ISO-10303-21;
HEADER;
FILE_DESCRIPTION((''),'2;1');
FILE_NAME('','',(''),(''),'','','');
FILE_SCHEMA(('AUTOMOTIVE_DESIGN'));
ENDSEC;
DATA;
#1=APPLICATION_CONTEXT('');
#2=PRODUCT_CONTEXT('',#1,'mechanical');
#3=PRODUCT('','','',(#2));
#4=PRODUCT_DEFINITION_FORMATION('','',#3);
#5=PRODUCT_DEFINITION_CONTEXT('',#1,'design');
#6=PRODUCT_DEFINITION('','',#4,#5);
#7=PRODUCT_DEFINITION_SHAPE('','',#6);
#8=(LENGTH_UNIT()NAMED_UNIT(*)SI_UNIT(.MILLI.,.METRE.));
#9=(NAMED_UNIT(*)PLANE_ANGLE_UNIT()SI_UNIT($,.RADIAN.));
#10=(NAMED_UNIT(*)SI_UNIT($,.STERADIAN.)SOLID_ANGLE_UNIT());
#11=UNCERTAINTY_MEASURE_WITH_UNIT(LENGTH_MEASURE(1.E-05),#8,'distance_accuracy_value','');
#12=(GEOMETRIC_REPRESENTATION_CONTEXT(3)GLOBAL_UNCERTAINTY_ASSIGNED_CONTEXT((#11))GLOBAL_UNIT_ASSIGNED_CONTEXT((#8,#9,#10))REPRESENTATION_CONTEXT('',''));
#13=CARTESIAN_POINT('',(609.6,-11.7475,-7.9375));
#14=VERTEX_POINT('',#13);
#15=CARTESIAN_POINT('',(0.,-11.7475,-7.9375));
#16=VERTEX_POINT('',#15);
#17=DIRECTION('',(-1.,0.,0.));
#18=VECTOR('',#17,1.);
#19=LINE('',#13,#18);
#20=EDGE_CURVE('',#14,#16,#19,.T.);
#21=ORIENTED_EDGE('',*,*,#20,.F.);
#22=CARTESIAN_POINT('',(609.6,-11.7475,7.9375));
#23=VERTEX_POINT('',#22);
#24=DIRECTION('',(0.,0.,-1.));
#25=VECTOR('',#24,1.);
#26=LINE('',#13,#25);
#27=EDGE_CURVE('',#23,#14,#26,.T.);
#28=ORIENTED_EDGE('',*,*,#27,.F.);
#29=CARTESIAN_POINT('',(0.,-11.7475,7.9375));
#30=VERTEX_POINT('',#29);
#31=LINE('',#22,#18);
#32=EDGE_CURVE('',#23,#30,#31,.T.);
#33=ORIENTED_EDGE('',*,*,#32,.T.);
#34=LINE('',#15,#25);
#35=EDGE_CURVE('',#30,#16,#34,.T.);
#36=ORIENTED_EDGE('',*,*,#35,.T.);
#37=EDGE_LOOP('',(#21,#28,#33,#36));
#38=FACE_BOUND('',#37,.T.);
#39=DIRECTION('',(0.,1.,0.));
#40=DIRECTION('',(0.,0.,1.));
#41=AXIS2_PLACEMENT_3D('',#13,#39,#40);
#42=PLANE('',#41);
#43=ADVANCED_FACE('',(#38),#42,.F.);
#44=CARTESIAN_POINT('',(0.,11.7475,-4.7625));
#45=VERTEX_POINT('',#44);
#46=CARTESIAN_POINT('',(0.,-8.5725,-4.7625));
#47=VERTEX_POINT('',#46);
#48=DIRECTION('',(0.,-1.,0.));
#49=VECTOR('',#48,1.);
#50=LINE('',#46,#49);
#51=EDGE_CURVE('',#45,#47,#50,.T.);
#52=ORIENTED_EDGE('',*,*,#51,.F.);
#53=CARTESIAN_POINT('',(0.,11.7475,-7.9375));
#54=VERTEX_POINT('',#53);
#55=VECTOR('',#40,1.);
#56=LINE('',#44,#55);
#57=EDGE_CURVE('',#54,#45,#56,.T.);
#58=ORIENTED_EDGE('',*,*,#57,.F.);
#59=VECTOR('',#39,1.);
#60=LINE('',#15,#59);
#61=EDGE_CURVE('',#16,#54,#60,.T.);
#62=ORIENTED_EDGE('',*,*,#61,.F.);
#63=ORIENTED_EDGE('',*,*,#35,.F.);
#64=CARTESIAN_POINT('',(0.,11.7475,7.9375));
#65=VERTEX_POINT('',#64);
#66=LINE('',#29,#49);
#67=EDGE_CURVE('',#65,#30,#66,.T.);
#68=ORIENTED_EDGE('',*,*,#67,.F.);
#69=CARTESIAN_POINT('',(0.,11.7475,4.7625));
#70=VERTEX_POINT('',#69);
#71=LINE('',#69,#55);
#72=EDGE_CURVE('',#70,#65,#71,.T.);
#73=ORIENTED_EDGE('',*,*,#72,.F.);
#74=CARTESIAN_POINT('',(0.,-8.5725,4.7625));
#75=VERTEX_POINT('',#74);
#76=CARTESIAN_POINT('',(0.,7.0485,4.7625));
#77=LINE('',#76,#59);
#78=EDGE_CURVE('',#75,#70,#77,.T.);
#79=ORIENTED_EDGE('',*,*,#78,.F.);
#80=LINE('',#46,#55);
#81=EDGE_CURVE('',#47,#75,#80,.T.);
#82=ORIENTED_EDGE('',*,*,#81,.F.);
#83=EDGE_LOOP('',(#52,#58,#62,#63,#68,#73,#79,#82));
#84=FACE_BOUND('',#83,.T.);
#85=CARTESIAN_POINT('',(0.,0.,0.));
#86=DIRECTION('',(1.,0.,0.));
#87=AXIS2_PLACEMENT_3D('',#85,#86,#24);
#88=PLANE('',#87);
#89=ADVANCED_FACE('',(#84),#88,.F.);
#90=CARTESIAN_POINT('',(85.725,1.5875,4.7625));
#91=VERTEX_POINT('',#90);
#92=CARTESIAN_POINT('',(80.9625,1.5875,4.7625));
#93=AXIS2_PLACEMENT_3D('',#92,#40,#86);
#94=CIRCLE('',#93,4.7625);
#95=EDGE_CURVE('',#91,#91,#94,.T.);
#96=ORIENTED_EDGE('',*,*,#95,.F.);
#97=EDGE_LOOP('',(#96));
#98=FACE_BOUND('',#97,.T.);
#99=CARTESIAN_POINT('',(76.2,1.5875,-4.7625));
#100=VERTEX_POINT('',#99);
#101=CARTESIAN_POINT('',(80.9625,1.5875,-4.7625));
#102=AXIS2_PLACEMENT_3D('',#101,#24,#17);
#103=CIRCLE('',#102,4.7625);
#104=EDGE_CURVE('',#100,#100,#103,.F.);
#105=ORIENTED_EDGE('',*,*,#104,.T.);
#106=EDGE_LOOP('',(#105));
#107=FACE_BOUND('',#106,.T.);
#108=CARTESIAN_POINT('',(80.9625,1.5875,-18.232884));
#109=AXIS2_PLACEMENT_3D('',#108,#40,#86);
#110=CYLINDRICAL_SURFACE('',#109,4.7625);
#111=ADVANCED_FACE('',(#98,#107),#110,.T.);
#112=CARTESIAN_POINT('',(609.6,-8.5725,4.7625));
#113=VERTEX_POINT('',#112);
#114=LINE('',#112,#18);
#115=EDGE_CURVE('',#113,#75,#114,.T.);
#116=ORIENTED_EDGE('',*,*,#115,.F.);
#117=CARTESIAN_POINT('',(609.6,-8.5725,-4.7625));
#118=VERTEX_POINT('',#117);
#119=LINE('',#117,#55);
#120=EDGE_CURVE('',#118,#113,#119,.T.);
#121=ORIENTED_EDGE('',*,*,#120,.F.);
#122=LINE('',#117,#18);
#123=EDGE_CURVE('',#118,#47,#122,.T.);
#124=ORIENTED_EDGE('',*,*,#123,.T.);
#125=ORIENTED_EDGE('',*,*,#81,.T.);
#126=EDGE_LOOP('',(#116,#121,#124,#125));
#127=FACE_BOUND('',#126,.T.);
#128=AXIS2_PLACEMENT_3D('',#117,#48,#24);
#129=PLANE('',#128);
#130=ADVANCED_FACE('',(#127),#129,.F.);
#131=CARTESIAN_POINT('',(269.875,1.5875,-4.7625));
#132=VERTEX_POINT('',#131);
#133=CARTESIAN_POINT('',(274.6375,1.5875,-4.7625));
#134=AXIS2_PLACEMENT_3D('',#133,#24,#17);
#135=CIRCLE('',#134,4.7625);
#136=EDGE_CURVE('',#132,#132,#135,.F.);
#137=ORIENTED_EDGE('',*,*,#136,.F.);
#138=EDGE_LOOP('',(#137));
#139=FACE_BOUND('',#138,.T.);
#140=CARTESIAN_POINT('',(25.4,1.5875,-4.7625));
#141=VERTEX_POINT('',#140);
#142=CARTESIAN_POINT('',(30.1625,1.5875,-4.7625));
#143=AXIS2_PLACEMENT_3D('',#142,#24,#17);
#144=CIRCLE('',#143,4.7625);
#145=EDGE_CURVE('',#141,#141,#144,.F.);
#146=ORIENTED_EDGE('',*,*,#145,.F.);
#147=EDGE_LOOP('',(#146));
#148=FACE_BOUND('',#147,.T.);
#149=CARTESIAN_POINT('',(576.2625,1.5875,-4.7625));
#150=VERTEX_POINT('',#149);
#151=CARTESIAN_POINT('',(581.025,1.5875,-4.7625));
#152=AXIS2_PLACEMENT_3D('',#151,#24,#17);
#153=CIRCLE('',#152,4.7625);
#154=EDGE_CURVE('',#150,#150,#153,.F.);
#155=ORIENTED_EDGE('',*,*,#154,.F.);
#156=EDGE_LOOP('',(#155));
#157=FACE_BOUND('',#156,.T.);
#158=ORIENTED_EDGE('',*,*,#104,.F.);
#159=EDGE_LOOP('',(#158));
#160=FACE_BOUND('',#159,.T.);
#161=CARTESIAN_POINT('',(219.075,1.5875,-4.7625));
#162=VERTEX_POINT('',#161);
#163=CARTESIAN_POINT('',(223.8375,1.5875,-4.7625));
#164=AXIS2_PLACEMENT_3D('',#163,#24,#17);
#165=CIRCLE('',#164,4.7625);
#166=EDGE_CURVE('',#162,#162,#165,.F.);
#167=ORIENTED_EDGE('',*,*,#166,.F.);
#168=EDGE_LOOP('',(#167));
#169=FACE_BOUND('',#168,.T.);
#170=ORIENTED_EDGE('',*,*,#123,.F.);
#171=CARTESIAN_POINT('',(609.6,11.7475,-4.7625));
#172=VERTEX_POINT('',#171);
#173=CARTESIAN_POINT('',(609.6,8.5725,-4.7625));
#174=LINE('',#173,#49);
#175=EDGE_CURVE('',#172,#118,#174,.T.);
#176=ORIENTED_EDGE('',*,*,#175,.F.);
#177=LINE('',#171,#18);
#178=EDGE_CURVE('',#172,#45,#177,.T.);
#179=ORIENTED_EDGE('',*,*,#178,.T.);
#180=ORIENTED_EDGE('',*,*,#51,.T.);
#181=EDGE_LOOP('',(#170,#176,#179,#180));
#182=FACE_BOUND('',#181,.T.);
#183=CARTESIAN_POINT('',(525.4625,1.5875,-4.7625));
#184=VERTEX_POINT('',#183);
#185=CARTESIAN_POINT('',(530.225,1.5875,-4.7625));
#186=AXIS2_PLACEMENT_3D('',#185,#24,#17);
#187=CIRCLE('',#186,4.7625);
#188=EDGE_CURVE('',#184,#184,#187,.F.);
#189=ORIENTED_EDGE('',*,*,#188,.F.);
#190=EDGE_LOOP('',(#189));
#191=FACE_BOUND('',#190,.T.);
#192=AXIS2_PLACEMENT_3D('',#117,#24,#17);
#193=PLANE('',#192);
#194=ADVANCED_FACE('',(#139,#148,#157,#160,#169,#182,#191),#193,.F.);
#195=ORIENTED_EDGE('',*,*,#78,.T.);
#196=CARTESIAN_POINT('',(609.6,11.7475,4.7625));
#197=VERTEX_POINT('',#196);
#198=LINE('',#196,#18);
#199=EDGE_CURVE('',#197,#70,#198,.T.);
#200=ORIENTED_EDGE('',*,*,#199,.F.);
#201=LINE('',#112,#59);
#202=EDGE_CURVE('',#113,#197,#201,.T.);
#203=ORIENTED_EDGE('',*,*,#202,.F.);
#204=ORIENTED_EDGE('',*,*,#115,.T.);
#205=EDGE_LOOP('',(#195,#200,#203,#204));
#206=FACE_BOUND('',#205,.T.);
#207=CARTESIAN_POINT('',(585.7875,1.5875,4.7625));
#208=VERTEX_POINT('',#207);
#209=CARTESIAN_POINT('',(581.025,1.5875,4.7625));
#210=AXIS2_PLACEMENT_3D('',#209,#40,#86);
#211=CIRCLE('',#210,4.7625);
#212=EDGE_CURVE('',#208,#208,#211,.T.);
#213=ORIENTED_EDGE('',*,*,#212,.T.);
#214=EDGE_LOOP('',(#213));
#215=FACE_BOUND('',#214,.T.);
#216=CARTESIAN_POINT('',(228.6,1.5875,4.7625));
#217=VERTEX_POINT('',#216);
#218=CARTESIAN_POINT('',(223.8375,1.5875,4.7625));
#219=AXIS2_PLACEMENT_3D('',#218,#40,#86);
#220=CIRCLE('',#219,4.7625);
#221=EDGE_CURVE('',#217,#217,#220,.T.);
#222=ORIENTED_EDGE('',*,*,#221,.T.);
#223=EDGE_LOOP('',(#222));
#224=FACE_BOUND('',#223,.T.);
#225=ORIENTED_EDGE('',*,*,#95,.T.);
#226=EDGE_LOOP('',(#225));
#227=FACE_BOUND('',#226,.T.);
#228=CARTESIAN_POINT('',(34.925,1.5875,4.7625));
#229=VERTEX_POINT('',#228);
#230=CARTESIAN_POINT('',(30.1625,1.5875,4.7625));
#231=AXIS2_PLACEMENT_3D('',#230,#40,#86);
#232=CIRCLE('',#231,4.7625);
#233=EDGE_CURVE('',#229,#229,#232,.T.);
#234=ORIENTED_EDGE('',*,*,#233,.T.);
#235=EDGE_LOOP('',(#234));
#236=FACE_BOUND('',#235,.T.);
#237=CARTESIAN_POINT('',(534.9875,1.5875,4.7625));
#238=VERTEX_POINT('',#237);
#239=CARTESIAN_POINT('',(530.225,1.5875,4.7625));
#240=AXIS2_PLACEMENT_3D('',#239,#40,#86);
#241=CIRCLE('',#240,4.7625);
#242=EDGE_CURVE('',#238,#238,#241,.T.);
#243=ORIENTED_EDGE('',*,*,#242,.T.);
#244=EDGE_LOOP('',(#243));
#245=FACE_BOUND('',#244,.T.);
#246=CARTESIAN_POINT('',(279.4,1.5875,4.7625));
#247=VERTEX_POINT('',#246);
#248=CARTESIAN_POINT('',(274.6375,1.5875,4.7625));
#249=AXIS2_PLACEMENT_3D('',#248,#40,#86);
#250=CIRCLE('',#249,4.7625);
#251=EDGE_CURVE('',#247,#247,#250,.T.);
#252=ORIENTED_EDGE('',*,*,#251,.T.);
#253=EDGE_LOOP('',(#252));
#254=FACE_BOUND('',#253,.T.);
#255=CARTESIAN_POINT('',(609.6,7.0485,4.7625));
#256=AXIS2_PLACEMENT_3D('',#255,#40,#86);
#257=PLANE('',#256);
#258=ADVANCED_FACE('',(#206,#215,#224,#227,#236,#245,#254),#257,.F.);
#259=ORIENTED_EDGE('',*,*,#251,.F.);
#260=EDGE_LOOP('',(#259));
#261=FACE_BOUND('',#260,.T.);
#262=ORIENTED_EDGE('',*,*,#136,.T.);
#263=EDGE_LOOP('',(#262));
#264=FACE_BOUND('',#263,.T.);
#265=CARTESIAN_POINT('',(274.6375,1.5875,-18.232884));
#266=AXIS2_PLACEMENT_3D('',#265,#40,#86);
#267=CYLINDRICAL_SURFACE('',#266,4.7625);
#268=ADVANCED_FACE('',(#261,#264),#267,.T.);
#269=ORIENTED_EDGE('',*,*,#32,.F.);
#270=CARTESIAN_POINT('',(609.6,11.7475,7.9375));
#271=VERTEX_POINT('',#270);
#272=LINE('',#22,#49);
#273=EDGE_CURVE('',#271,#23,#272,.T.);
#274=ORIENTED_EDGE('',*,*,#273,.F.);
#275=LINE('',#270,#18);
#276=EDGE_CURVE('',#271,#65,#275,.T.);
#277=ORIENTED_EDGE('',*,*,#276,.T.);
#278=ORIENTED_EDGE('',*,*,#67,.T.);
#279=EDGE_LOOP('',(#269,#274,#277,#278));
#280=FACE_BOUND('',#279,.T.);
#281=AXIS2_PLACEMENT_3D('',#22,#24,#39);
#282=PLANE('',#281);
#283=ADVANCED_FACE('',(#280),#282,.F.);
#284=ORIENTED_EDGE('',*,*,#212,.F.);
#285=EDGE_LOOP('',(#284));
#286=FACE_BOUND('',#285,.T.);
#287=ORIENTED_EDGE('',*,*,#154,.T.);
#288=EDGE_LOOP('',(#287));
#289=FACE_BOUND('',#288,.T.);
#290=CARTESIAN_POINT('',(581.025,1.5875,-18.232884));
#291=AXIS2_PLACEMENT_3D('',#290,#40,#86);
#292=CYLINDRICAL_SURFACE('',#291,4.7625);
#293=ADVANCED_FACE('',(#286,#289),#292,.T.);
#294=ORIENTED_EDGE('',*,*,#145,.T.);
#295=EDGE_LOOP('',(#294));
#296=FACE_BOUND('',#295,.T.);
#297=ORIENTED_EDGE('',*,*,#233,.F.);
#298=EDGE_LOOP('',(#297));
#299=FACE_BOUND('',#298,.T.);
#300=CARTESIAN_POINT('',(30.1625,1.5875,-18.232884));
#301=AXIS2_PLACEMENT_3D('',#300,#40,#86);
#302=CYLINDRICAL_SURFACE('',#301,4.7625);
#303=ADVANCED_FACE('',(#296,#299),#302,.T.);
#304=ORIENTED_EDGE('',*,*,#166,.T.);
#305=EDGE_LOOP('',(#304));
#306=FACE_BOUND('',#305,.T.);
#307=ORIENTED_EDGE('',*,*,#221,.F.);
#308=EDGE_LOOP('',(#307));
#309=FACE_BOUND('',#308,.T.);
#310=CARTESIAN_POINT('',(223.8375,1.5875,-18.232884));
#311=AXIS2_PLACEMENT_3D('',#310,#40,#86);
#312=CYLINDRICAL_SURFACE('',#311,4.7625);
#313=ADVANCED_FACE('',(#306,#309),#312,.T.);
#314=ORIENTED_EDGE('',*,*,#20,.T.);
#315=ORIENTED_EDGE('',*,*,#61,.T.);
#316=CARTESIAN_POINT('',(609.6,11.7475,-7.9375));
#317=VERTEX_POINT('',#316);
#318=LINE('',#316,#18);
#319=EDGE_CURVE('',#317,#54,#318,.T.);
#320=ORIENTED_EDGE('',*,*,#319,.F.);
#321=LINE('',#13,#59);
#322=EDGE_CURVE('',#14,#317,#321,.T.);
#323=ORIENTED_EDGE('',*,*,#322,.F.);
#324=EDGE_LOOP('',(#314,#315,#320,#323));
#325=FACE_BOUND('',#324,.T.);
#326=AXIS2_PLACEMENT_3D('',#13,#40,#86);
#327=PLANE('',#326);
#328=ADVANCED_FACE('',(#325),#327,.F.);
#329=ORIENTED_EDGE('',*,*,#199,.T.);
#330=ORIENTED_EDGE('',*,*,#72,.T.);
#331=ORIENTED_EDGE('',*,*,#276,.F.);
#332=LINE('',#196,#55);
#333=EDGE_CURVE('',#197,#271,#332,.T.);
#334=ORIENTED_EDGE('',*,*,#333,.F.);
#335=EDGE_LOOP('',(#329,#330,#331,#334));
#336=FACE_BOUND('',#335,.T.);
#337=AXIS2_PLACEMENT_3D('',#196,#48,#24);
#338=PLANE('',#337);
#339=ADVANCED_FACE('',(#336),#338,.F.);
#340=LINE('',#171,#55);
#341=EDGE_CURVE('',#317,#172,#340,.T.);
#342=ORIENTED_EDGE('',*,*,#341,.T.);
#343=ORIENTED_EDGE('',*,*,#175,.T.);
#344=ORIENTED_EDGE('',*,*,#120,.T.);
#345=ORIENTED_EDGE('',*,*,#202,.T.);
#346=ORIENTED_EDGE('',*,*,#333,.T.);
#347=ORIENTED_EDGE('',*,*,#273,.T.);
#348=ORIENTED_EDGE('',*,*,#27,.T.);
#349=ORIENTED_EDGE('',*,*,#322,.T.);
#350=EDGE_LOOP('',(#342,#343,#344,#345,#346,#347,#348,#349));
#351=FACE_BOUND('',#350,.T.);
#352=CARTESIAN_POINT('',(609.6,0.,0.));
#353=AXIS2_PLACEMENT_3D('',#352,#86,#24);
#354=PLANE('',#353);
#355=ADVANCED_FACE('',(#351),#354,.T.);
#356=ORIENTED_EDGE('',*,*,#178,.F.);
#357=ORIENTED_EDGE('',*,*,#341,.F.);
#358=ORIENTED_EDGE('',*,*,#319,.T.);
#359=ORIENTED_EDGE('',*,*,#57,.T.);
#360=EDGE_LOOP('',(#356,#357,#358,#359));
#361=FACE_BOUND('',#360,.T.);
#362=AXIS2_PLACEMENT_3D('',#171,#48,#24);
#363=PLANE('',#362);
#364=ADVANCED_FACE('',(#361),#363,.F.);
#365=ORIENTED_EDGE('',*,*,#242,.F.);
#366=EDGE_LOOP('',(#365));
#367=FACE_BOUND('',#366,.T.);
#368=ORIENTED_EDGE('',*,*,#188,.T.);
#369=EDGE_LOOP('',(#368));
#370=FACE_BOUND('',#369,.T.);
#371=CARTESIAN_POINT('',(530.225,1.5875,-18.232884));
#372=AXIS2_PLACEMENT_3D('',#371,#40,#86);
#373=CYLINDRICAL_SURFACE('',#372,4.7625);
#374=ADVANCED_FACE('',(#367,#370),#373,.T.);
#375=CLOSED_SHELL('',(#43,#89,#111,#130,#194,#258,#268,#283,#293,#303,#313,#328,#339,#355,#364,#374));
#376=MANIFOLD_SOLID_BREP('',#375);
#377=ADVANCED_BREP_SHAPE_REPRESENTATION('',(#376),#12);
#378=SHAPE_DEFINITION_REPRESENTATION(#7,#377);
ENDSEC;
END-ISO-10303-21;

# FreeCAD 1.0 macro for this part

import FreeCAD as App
import Part
import Sketcher
from FreeCAD import Vector
Q = App.Units.Quantity

doc = App.newDocument("Part")
params = doc.addObject("Spreadsheet::Sheet", "Params")
for row, (alias, value) in enumerate([
    ("sketch1_width", "0.8 in"),
    ("sketch1_width2", "0.925 in"),
    ("sketch1_height", "0.125 in"),
    ("pad1_length", "24 in"),
    ("sketch2_diameter", "0.375 in"),
    ("pad2_length", "0.375 in"),
], start=1):
    params.set(f"A{row}", alias)
    params.set(f"B{row}", "=" + value)
    params.setAlias(f"B{row}", alias)

body = doc.addObject("PartDesign::Body", "Body")

# Sketch on YZ plane
sketch1 = body.newObject("Sketcher::SketchObject", "Sketch")
sketch1.AttachmentSupport = (doc.getObject("YZ_Plane"), [""])
sketch1.MapMode = "FlatFace"
sketch1.addGeometry(Part.LineSegment(Vector(11.7, 4.8, 0), Vector(11.7, 7.9, 0)), False)
sketch1.addGeometry(Part.LineSegment(Vector(11.7, 7.9, 0), Vector(-11.7, 7.9, 0)), False)
sketch1.addGeometry(Part.LineSegment(Vector(-11.7, 7.9, 0), Vector(-11.7, -7.9, 0)), False)
sketch1.addGeometry(Part.LineSegment(Vector(-11.7, -7.9, 0), Vector(11.7, -7.9, 0)), False)
sketch1.addGeometry(Part.LineSegment(Vector(11.7, -7.9, 0), Vector(11.7, -4.8, 0)), False)
sketch1.addGeometry(Part.LineSegment(Vector(11.7, -4.8, 0), Vector(-8.6, -4.8, 0)), False)
sketch1.addGeometry(Part.LineSegment(Vector(-8.6, -4.8, 0), Vector(-8.6, 4.8, 0)), False)
sketch1.addGeometry(Part.LineSegment(Vector(-8.6, 4.8, 0), Vector(11.7, 4.8, 0)), False)
sketch1.addConstraint(Sketcher.Constraint("Coincident", 0, 2, 1, 1))
sketch1.addConstraint(Sketcher.Constraint("Coincident", 1, 2, 2, 1))
sketch1.addConstraint(Sketcher.Constraint("Coincident", 2, 2, 3, 1))
sketch1.addConstraint(Sketcher.Constraint("Coincident", 3, 2, 4, 1))
sketch1.addConstraint(Sketcher.Constraint("Coincident", 4, 2, 5, 1))
sketch1.addConstraint(Sketcher.Constraint("Coincident", 5, 2, 6, 1))
sketch1.addConstraint(Sketcher.Constraint("Coincident", 6, 2, 7, 1))
sketch1.addConstraint(Sketcher.Constraint("Coincident", 7, 2, 0, 1))
sketch1.addConstraint(Sketcher.Constraint("Vertical", 0))
sketch1.addConstraint(Sketcher.Constraint("Horizontal", 1))
sketch1.addConstraint(Sketcher.Constraint("Vertical", 2))
sketch1.addConstraint(Sketcher.Constraint("Horizontal", 3))
sketch1.addConstraint(Sketcher.Constraint("Vertical", 4))
sketch1.addConstraint(Sketcher.Constraint("Horizontal", 5))
sketch1.addConstraint(Sketcher.Constraint("Vertical", 6))
sketch1.addConstraint(Sketcher.Constraint("Horizontal", 7))
sketch1.addConstraint(Sketcher.Constraint("Symmetric", 0, 2, 2, 2, -1, 1))
sketch1.addConstraint(Sketcher.Constraint("Symmetric", 4, 2, 7, 2, -1))
sketch1.addConstraint(Sketcher.Constraint("DistanceX", 5, 2, 5, 1, Q("0.8 in")))
sketch1.addConstraint(Sketcher.Constraint("DistanceY", 4, 2, 0, 2, Q("0.5 in")))
sketch1.addConstraint(Sketcher.Constraint("DistanceX", 1, 2, 1, 1, Q("0.925 in")))
sketch1.addConstraint(Sketcher.Constraint("DistanceY", 0, 1, 0, 2, Q("0.125 in")))
sketch1.setExpression("Constraints[18]", "Params.sketch1_width")
sketch1.setExpression("Constraints[20]", "Params.sketch1_width2")
sketch1.setExpression("Constraints[21]", "Params.sketch1_height")
pad1 = body.newObject("PartDesign::Pad", "Pad")
pad1.Profile = sketch1
pad1.setExpression("Length", "Params.pad1_length")

# Sketch on XY plane
sketch2 = body.newObject("Sketcher::SketchObject", "Sketch001")
sketch2.AttachmentSupport = (doc.getObject("XY_Plane"), [""])
sketch2.MapMode = "FlatFace"
sketch2.AttachmentOffset = App.Placement(Vector(0, 0, 0.1875 * 25.4), App.Rotation())
sketch2.addGeometry(Part.Circle(Vector(581, 1.6, 0), Vector(0, 0, 1), 4.8), False)
sketch2.addGeometry(Part.Circle(Vector(530.2, 1.6, 0), Vector(0, 0, 1), 4.8), False)
sketch2.addGeometry(Part.Circle(Vector(274.6, 1.6, 0), Vector(0, 0, 1), 4.8), False)
sketch2.addGeometry(Part.Circle(Vector(223.8, 1.6, 0), Vector(0, 0, 1), 4.8), False)
sketch2.addGeometry(Part.Circle(Vector(30.2, 1.6, 0), Vector(0, 0, 1), 4.8), False)
sketch2.addGeometry(Part.Circle(Vector(81, 1.6, 0), Vector(0, 0, 1), 4.8), False)
sketch2.addConstraint(Sketcher.Constraint("Equal", 0, 1))
sketch2.addConstraint(Sketcher.Constraint("Equal", 1, 2))
sketch2.addConstraint(Sketcher.Constraint("Equal", 2, 3))
sketch2.addConstraint(Sketcher.Constraint("Equal", 3, 4))
sketch2.addConstraint(Sketcher.Constraint("Equal", 4, 5))
sketch2.addConstraint(Sketcher.Constraint("Horizontal", 0, 3, 1, 3))
sketch2.addConstraint(Sketcher.Constraint("Horizontal", 1, 3, 2, 3))
sketch2.addConstraint(Sketcher.Constraint("Horizontal", 2, 3, 3, 3))
sketch2.addConstraint(Sketcher.Constraint("Horizontal", 3, 3, 4, 3))
sketch2.addConstraint(Sketcher.Constraint("Horizontal", 4, 3, 5, 3))
sketch2.addConstraint(Sketcher.Constraint("Diameter", 0, Q("0.375 in")))
sketch2.addConstraint(Sketcher.Constraint("DistanceX", 1, 3, 0, 3, Q("2 in")))
sketch2.addConstraint(Sketcher.Constraint("DistanceX", 3, 3, 2, 3, Q("2 in")))
sketch2.addConstraint(Sketcher.Constraint("DistanceX", 4, 3, 5, 3, Q("2 in")))
sketch2.addConstraint(Sketcher.Constraint("DistanceX", -1, 1, 0, 3, Q("22.875 in")))
sketch2.addConstraint(Sketcher.Constraint("DistanceY", -1, 1, 0, 3, Q("0.0625 in")))
sketch2.addConstraint(Sketcher.Constraint("DistanceX", -1, 1, 2, 3, Q("10.8125 in")))
sketch2.addConstraint(Sketcher.Constraint("DistanceX", -1, 1, 4, 3, Q("1.1875 in")))
sketch2.setExpression("Constraints[10]", "Params.sketch2_diameter")
pad2 = body.newObject("PartDesign::Pad", "Pad001")
pad2.Profile = sketch2
pad2.setExpression("Length", "Params.pad2_length")
pad2.Reversed = True

doc.recompute()
